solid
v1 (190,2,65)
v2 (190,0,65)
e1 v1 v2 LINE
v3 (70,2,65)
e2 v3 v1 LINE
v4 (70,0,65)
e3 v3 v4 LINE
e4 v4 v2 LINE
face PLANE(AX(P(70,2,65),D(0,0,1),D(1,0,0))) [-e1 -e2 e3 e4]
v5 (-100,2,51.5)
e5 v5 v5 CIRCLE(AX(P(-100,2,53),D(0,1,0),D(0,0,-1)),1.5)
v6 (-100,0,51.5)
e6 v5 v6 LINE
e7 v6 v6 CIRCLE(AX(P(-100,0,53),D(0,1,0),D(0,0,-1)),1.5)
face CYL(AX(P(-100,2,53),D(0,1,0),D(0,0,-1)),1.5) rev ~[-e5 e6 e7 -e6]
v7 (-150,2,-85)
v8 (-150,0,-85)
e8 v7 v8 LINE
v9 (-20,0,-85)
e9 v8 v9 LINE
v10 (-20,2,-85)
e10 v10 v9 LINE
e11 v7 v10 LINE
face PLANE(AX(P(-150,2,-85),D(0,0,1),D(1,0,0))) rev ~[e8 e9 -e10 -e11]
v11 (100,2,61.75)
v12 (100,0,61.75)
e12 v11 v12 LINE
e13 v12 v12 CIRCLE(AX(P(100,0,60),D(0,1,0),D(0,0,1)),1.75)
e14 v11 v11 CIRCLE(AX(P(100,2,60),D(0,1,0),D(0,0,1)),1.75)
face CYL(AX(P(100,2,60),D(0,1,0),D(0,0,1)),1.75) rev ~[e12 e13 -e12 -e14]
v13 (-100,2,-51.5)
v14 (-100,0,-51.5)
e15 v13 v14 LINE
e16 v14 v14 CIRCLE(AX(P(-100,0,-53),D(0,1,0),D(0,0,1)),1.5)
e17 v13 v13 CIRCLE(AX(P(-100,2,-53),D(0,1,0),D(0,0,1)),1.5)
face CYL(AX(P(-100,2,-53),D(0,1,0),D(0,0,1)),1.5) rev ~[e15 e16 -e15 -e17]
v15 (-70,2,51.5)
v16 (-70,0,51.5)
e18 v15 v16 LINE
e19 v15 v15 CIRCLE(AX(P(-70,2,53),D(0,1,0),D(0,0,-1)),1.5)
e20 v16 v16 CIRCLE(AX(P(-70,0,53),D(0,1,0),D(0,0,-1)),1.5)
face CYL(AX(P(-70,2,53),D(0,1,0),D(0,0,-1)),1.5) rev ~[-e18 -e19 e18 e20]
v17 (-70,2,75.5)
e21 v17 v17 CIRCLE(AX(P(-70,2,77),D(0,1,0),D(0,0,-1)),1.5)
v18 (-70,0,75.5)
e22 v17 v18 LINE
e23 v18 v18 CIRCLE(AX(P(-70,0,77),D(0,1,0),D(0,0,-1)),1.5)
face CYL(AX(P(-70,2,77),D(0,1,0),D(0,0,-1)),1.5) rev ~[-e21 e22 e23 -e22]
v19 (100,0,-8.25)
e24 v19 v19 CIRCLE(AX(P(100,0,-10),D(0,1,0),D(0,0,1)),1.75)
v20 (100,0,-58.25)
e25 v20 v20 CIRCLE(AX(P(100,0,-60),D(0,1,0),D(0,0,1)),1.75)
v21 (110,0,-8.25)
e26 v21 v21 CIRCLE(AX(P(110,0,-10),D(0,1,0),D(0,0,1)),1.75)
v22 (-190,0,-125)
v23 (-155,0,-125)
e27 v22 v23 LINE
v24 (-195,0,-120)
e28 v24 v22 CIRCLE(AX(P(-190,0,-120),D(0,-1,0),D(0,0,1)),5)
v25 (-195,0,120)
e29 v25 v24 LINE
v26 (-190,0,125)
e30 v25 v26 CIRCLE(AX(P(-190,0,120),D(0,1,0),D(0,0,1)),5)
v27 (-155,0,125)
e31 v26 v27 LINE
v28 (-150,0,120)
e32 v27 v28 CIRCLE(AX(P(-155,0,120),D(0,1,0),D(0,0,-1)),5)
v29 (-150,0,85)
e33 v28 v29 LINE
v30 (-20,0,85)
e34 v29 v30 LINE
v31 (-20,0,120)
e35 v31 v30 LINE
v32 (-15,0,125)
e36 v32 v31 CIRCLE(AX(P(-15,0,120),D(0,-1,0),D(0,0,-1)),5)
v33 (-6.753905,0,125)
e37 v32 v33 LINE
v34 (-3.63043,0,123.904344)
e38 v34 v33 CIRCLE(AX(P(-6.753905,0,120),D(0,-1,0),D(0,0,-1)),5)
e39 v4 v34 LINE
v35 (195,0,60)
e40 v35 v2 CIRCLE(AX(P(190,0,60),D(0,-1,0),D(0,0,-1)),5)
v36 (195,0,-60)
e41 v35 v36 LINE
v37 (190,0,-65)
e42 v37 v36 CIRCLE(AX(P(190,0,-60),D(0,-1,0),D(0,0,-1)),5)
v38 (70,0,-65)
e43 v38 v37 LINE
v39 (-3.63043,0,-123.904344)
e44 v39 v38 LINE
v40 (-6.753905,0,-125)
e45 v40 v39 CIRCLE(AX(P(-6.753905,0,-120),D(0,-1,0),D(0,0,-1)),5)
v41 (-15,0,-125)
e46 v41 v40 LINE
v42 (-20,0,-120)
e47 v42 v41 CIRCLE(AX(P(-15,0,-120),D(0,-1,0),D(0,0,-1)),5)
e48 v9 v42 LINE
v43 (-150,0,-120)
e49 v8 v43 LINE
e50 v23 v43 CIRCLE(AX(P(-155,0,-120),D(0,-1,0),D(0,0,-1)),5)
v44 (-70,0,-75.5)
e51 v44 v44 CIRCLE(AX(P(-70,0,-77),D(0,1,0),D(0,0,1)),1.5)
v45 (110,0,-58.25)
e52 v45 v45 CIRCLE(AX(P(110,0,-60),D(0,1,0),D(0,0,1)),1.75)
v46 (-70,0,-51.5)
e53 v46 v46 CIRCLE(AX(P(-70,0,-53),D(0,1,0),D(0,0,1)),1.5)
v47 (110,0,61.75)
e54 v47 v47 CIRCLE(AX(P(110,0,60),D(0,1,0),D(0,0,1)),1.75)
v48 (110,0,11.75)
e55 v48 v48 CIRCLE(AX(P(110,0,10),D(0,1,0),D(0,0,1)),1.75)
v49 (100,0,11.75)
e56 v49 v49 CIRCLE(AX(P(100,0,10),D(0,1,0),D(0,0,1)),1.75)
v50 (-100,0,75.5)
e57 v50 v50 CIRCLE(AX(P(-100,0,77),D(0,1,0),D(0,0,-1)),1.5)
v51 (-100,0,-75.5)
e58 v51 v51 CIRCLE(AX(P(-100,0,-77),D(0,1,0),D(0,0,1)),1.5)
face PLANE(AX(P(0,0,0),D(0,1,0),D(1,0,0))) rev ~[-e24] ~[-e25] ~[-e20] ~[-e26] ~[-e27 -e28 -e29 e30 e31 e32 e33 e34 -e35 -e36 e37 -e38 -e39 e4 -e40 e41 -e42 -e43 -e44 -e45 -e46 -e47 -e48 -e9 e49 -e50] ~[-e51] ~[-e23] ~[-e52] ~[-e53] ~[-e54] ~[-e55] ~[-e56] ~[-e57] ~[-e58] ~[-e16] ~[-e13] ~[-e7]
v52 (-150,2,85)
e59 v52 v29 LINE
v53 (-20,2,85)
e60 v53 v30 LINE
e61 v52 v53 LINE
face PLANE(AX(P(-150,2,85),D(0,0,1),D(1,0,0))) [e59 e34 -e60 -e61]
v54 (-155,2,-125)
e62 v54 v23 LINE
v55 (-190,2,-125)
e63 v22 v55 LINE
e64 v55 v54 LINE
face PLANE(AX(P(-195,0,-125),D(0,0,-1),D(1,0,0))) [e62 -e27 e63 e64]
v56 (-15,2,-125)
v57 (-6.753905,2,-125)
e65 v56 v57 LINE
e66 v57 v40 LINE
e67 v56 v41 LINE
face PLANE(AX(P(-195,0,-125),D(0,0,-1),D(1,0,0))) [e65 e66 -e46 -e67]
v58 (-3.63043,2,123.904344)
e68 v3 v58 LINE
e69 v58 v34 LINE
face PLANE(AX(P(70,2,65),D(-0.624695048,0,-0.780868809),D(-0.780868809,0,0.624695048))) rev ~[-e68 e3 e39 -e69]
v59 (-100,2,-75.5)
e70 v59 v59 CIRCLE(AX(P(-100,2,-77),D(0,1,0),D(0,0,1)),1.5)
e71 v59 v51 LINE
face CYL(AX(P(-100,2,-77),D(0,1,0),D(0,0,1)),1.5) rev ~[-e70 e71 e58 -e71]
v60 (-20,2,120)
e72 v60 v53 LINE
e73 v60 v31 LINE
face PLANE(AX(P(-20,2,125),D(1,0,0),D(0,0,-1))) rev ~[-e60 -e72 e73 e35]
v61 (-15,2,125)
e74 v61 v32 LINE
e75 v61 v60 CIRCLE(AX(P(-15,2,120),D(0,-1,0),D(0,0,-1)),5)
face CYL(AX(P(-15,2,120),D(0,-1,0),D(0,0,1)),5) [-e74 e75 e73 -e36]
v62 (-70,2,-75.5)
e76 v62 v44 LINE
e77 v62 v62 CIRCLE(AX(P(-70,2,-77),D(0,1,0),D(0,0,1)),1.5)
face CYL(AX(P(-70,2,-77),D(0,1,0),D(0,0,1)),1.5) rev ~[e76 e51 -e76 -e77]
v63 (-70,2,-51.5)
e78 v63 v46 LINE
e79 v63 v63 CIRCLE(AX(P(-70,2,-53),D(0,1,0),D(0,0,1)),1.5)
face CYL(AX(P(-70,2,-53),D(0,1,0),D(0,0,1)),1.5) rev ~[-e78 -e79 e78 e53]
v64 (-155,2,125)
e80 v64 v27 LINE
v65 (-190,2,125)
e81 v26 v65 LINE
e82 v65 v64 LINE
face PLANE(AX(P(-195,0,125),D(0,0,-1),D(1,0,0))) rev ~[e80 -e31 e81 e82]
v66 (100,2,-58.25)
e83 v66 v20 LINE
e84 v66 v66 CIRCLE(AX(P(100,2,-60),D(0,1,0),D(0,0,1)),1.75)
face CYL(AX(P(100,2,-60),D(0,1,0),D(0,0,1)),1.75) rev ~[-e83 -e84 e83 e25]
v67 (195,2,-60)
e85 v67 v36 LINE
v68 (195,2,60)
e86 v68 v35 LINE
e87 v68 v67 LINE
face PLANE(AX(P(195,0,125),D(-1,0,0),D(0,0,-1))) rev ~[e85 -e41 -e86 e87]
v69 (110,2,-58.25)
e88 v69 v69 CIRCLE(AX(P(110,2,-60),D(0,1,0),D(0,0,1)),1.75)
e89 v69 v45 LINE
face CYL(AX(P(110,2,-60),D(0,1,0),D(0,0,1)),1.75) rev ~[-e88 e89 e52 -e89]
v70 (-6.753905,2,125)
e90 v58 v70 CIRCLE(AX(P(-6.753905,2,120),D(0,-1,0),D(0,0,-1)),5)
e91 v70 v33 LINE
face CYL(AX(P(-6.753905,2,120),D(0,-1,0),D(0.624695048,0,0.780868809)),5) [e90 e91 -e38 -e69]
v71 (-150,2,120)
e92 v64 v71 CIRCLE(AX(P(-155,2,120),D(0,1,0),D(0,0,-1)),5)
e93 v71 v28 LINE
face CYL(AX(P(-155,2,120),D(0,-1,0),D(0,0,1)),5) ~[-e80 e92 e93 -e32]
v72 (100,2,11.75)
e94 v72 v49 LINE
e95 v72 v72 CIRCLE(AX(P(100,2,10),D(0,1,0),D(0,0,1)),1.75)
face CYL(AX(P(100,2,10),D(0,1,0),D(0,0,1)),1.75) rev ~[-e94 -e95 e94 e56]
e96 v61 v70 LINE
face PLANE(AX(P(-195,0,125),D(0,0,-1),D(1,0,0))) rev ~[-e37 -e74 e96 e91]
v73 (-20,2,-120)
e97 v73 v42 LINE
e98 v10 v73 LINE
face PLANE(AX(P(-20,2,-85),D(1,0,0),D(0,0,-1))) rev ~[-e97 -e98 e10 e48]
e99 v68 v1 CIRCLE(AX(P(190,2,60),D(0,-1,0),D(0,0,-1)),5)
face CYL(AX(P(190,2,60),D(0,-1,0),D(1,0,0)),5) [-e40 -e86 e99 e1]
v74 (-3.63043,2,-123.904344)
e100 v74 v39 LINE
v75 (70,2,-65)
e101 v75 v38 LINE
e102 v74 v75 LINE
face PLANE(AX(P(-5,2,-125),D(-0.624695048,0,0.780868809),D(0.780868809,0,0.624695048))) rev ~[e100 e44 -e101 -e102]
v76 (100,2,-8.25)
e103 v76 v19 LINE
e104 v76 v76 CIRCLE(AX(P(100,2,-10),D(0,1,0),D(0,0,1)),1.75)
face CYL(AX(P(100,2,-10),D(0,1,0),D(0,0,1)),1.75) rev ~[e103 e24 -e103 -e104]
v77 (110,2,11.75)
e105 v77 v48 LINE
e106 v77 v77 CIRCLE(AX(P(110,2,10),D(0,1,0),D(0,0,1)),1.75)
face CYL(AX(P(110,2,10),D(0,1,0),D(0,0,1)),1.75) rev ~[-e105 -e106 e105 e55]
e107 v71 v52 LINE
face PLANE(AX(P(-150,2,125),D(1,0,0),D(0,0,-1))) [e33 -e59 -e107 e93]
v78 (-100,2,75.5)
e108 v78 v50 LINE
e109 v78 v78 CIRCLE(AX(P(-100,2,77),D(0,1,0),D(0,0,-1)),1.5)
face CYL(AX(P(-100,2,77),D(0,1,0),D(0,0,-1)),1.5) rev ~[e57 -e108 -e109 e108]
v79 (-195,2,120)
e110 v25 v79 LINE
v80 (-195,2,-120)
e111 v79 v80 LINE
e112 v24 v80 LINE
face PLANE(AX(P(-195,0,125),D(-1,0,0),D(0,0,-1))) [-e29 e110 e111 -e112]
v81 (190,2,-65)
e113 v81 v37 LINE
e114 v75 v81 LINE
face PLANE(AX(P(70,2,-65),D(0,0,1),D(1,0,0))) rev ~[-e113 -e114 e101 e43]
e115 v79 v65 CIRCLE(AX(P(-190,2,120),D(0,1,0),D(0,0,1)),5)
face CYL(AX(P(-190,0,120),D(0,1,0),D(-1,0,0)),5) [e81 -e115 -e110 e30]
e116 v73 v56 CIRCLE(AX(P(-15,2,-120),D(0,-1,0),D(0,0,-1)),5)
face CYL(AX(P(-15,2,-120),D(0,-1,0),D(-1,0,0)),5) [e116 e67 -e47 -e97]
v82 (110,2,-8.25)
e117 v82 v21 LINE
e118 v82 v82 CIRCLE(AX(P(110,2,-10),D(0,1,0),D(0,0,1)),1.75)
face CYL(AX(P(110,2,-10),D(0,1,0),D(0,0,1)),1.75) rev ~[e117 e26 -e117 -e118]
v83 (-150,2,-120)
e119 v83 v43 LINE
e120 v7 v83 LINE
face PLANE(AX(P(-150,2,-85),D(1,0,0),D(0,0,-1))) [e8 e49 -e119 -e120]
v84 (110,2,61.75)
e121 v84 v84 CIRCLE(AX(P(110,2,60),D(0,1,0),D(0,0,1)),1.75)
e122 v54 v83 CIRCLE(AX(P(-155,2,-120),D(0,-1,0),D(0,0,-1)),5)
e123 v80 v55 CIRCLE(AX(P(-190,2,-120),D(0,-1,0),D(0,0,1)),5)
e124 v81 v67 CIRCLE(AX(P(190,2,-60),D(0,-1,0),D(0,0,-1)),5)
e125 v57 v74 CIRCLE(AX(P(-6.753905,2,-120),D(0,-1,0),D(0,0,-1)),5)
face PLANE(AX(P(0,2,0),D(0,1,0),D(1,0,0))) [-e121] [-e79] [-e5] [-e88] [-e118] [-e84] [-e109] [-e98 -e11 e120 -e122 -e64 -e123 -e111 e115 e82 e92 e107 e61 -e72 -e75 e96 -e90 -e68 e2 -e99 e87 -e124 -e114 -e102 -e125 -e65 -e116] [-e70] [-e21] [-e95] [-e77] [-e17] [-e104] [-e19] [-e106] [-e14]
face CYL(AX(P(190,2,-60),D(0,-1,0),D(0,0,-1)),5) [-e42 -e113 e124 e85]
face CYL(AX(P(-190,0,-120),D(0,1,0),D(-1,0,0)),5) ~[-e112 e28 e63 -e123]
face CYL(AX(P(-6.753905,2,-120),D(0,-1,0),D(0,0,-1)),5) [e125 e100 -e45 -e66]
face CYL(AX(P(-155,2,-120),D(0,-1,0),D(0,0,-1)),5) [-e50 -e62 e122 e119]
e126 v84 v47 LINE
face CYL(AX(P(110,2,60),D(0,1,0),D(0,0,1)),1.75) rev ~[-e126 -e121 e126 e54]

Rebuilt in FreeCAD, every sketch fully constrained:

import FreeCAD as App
import Part
import Sketcher
from FreeCAD import Vector


def edges_at(feature, points):
    """Names of the edges that pass closest to the given points."""
    edges = feature.Shape.Edges
    near = lambda p: min(range(len(edges)), key=lambda i: edges[i].distToShape(Part.Vertex(*p))[0])
    return sorted({f"Edge{near(p) + 1}" for p in points})


def add_polygon(sketch, points):
    """Adds a closed chain of lines whose ends are joined by coincident constraints."""
    first, n = sketch.GeometryCount, len(points)
    for a, b in zip(points, points[1:] + points[:1]):
        sketch.addGeometry(Part.LineSegment(App.Vector(*a, 0), App.Vector(*b, 0)), False)
    for i in range(n):
        sketch.addConstraint(Sketcher.Constraint("Coincident", first + i, 2, first + (i + 1) % n, 1))

doc = App.newDocument("Part")
body = doc.addObject("PartDesign::Body", "Body")

# Sketch on XZ plane
sketch1 = body.newObject("Sketcher::SketchObject", "Sketch")
sketch1.AttachmentSupport = (doc.getObject("XZ_Plane"), [""])
sketch1.MapMode = "FlatFace"
add_polygon(sketch1, [(-195, -125), (-195, 125), (195, 125), (195, -125)])  # lines 0-3
sketch1.addConstraint([
    Sketcher.Constraint("Vertical", 0),
    Sketcher.Constraint("Horizontal", 1),
    Sketcher.Constraint("Vertical", 2),
    Sketcher.Constraint("Horizontal", 3),
    Sketcher.Constraint("Symmetric", 0, 2, 2, 2, -1, 1),
    Sketcher.Constraint("DistanceX", 1, 1, 1, 2, 390.0),
    Sketcher.Constraint("DistanceY", 0, 1, 0, 2, 250.0),
])
pad1 = body.newObject("PartDesign::Pad", "Pad")
pad1.Profile = sketch1
pad1.Length = 2
pad1.Reversed = True

# Sketch on XZ plane
sketch2 = body.newObject("Sketcher::SketchObject", "Sketch001")
sketch2.AttachmentSupport = (doc.getObject("XZ_Plane"), [""])
sketch2.MapMode = "FlatFace"
sketch2.AttachmentOffset = App.Placement(Vector(0, 0, -2), App.Rotation())
add_polygon(sketch2, [(-150, -125), (-150, -85), (-20, -85), (-20, -125)])  # lines 0-3
add_polygon(sketch2, [(-150, 85), (-150, 125), (-20, 125), (-20, 85)])  # lines 4-7
add_polygon(sketch2, [(70, -125), (70, -65), (195, -65), (195, -125)])  # lines 8-11
add_polygon(sketch2, [(70, 65), (70, 125), (195, 125), (195, 65)])  # lines 12-15
sketch2.addConstraint([
    Sketcher.Constraint("Vertical", 0),
    Sketcher.Constraint("Horizontal", 1),
    Sketcher.Constraint("Vertical", 2),
    Sketcher.Constraint("Horizontal", 3),
    Sketcher.Constraint("Vertical", 4),
    Sketcher.Constraint("Horizontal", 5),
    Sketcher.Constraint("Vertical", 6),
    Sketcher.Constraint("Horizontal", 7),
    Sketcher.Constraint("Vertical", 8),
    Sketcher.Constraint("Horizontal", 9),
    Sketcher.Constraint("Vertical", 10),
    Sketcher.Constraint("Horizontal", 11),
    Sketcher.Constraint("Vertical", 12),
    Sketcher.Constraint("Horizontal", 13),
    Sketcher.Constraint("Vertical", 14),
    Sketcher.Constraint("Horizontal", 15),
    Sketcher.Constraint("Symmetric", 3, 2, 4, 2, -1),
    Sketcher.Constraint("Symmetric", 1, 2, 6, 2, -1),
    Sketcher.Constraint("Symmetric", 11, 2, 12, 2, -1),
    Sketcher.Constraint("Symmetric", 9, 2, 14, 2, -1),
    Sketcher.Constraint("Horizontal", 3, 2, 10, 2),
    Sketcher.Constraint("DistanceX", 1, 1, 1, 2, 130.0),
    Sketcher.Constraint("DistanceX", 9, 1, 9, 2, 125.0),
    Sketcher.Constraint("DistanceY", 0, 1, 0, 2, 40.0),
    Sketcher.Constraint("DistanceY", 8, 1, 8, 2, 60.0),
    Sketcher.Constraint("DistanceX", 0, 2, -1, 1, 150.0),
    Sketcher.Constraint("DistanceY", 0, 2, -1, 1, 85.0),
    Sketcher.Constraint("DistanceX", -1, 1, 8, 2, 70.0),
])
pocket1 = body.newObject("PartDesign::Pocket", "Pocket")
pocket1.Profile = sketch2
pocket1.Length = 5
pocket1.Reversed = True

# Sketch on XZ plane
sketch3 = body.newObject("Sketcher::SketchObject", "Sketch002")
sketch3.AttachmentSupport = (doc.getObject("XZ_Plane"), [""])
sketch3.MapMode = "FlatFace"
sketch3.AttachmentOffset = App.Placement(Vector(0, 0, -2), App.Rotation())
add_polygon(sketch3, [(-5, -125), (70, -65), (70, -125)])  # lines 0-2
add_polygon(sketch3, [(70, 65), (-5, 125), (70, 125)])  # lines 3-5
sketch3.addConstraint([
    Sketcher.Constraint("Vertical", 1),
    Sketcher.Constraint("Horizontal", 2),
    Sketcher.Constraint("Horizontal", 4),
    Sketcher.Constraint("Vertical", 5),
    Sketcher.Constraint("Symmetric", 2, 2, 3, 2, -1),
    Sketcher.Constraint("Symmetric", 0, 2, 5, 2, -1),
    Sketcher.Constraint("DistanceX", 2, 2, 2, 1, 75.0),
    Sketcher.Constraint("DistanceY", 1, 2, 1, 1, 60.0),
    Sketcher.Constraint("DistanceX", -1, 1, 0, 2, 70.0),
    Sketcher.Constraint("DistanceY", 0, 2, -1, 1, 65.0),
])
pocket2 = body.newObject("PartDesign::Pocket", "Pocket001")
pocket2.Profile = sketch3
pocket2.Length = 10
pocket2.Reversed = True
doc.recompute()

fillet = body.newObject("PartDesign::Fillet", "Fillet")
fillet.Base = (pocket2, edges_at(pocket2, [
    (-5, 1, -125),
    (-5, 1, 125),
    (-150, 1, 125),
    (-20, 1, 125),
    (195, 1, -65),
    (195, 1, 65),
    (-150, 1, -125),
    (-20, 1, -125),
    (-195, 1, 125),
    (-195, 1, -125),
]))
fillet.Radius = 5

# Sketch on XZ plane
sketch4 = body.newObject("Sketcher::SketchObject", "Sketch003")
sketch4.AttachmentSupport = (doc.getObject("XZ_Plane"), [""])
sketch4.MapMode = "FlatFace"
sketch4.AttachmentOffset = App.Placement(Vector(0, 0, -2), App.Rotation())
sketch4.addGeometry([
    Part.Circle(Vector(-100, -77, 0), Vector(0, 0, 1), 1.5),  # 0
    Part.Circle(Vector(-70, -77, 0), Vector(0, 0, 1), 1.5),  # 1
    Part.Circle(Vector(-70, -53, 0), Vector(0, 0, 1), 1.5),  # 2
    Part.Circle(Vector(-100, -53, 0), Vector(0, 0, 1), 1.5),  # 3
    Part.Circle(Vector(-100, 53, 0), Vector(0, 0, 1), 1.5),  # 4
    Part.Circle(Vector(-70, 53, 0), Vector(0, 0, 1), 1.5),  # 5
    Part.Circle(Vector(-70, 77, 0), Vector(0, 0, 1), 1.5),  # 6
    Part.Circle(Vector(-100, 77, 0), Vector(0, 0, 1), 1.5),  # 7
    Part.Circle(Vector(100, -60, 0), Vector(0, 0, 1), 1.8),  # 8
    Part.Circle(Vector(110, -60, 0), Vector(0, 0, 1), 1.8),  # 9
    Part.Circle(Vector(100, -10, 0), Vector(0, 0, 1), 1.8),  # 10
    Part.Circle(Vector(110, -10, 0), Vector(0, 0, 1), 1.8),  # 11
    Part.Circle(Vector(100, 10, 0), Vector(0, 0, 1), 1.8),  # 12
    Part.Circle(Vector(110, 10, 0), Vector(0, 0, 1), 1.8),  # 13
    Part.Circle(Vector(100, 60, 0), Vector(0, 0, 1), 1.8),  # 14
    Part.Circle(Vector(110, 60, 0), Vector(0, 0, 1), 1.8),  # 15
], False)
sketch4.addConstraint([
    Sketcher.Constraint("Equal", 0, 1),
    Sketcher.Constraint("Equal", 1, 2),
    Sketcher.Constraint("Equal", 2, 3),
    Sketcher.Constraint("Equal", 3, 4),
    Sketcher.Constraint("Equal", 4, 5),
    Sketcher.Constraint("Equal", 5, 6),
    Sketcher.Constraint("Equal", 6, 7),
    Sketcher.Constraint("Equal", 8, 9),
    Sketcher.Constraint("Equal", 9, 10),
    Sketcher.Constraint("Equal", 10, 11),
    Sketcher.Constraint("Equal", 11, 12),
    Sketcher.Constraint("Equal", 12, 13),
    Sketcher.Constraint("Equal", 13, 14),
    Sketcher.Constraint("Equal", 14, 15),
    Sketcher.Constraint("Symmetric", 3, 3, 4, 3, -1),
    Sketcher.Constraint("Symmetric", 2, 3, 5, 3, -1),
    Sketcher.Constraint("Symmetric", 1, 3, 6, 3, -1),
    Sketcher.Constraint("Symmetric", 0, 3, 7, 3, -1),
    Sketcher.Constraint("Symmetric", 10, 3, 12, 3, -1),
    Sketcher.Constraint("Symmetric", 11, 3, 13, 3, -1),
    Sketcher.Constraint("Symmetric", 8, 3, 14, 3, -1),
    Sketcher.Constraint("Symmetric", 9, 3, 15, 3, -1),
    Sketcher.Constraint("Horizontal", 0, 3, 1, 3),
    Sketcher.Constraint("Horizontal", 2, 3, 3, 3),
    Sketcher.Constraint("Horizontal", 8, 3, 9, 3),
    Sketcher.Constraint("Horizontal", 10, 3, 11, 3),
    Sketcher.Constraint("Vertical", 1, 3, 2, 3),
    Sketcher.Constraint("Vertical", 0, 3, 3, 3),
    Sketcher.Constraint("Vertical", 8, 3, 10, 3),
    Sketcher.Constraint("Vertical", 9, 3, 11, 3),
    Sketcher.Constraint("Diameter", 0, 3.0),
    Sketcher.Constraint("Diameter", 8, 3.5),
    Sketcher.Constraint("DistanceX", 0, 3, -1, 1, 100.0),
    Sketcher.Constraint("DistanceY", 0, 3, -1, 1, 77.0),
    Sketcher.Constraint("DistanceX", 1, 3, -1, 1, 70.0),
    Sketcher.Constraint("DistanceY", 2, 3, -1, 1, 53.0),
    Sketcher.Constraint("DistanceX", -1, 1, 8, 3, 100.0),
    Sketcher.Constraint("DistanceY", 8, 3, -1, 1, 60.0),
    Sketcher.Constraint("DistanceX", -1, 1, 9, 3, 110.0),
    Sketcher.Constraint("DistanceY", 10, 3, -1, 1, 10.0),
])
pocket3 = body.newObject("PartDesign::Pocket", "Pocket002")
pocket3.Profile = sketch4
pocket3.Type = "ThroughAll"
pocket3.Reversed = True

doc.recompute()
